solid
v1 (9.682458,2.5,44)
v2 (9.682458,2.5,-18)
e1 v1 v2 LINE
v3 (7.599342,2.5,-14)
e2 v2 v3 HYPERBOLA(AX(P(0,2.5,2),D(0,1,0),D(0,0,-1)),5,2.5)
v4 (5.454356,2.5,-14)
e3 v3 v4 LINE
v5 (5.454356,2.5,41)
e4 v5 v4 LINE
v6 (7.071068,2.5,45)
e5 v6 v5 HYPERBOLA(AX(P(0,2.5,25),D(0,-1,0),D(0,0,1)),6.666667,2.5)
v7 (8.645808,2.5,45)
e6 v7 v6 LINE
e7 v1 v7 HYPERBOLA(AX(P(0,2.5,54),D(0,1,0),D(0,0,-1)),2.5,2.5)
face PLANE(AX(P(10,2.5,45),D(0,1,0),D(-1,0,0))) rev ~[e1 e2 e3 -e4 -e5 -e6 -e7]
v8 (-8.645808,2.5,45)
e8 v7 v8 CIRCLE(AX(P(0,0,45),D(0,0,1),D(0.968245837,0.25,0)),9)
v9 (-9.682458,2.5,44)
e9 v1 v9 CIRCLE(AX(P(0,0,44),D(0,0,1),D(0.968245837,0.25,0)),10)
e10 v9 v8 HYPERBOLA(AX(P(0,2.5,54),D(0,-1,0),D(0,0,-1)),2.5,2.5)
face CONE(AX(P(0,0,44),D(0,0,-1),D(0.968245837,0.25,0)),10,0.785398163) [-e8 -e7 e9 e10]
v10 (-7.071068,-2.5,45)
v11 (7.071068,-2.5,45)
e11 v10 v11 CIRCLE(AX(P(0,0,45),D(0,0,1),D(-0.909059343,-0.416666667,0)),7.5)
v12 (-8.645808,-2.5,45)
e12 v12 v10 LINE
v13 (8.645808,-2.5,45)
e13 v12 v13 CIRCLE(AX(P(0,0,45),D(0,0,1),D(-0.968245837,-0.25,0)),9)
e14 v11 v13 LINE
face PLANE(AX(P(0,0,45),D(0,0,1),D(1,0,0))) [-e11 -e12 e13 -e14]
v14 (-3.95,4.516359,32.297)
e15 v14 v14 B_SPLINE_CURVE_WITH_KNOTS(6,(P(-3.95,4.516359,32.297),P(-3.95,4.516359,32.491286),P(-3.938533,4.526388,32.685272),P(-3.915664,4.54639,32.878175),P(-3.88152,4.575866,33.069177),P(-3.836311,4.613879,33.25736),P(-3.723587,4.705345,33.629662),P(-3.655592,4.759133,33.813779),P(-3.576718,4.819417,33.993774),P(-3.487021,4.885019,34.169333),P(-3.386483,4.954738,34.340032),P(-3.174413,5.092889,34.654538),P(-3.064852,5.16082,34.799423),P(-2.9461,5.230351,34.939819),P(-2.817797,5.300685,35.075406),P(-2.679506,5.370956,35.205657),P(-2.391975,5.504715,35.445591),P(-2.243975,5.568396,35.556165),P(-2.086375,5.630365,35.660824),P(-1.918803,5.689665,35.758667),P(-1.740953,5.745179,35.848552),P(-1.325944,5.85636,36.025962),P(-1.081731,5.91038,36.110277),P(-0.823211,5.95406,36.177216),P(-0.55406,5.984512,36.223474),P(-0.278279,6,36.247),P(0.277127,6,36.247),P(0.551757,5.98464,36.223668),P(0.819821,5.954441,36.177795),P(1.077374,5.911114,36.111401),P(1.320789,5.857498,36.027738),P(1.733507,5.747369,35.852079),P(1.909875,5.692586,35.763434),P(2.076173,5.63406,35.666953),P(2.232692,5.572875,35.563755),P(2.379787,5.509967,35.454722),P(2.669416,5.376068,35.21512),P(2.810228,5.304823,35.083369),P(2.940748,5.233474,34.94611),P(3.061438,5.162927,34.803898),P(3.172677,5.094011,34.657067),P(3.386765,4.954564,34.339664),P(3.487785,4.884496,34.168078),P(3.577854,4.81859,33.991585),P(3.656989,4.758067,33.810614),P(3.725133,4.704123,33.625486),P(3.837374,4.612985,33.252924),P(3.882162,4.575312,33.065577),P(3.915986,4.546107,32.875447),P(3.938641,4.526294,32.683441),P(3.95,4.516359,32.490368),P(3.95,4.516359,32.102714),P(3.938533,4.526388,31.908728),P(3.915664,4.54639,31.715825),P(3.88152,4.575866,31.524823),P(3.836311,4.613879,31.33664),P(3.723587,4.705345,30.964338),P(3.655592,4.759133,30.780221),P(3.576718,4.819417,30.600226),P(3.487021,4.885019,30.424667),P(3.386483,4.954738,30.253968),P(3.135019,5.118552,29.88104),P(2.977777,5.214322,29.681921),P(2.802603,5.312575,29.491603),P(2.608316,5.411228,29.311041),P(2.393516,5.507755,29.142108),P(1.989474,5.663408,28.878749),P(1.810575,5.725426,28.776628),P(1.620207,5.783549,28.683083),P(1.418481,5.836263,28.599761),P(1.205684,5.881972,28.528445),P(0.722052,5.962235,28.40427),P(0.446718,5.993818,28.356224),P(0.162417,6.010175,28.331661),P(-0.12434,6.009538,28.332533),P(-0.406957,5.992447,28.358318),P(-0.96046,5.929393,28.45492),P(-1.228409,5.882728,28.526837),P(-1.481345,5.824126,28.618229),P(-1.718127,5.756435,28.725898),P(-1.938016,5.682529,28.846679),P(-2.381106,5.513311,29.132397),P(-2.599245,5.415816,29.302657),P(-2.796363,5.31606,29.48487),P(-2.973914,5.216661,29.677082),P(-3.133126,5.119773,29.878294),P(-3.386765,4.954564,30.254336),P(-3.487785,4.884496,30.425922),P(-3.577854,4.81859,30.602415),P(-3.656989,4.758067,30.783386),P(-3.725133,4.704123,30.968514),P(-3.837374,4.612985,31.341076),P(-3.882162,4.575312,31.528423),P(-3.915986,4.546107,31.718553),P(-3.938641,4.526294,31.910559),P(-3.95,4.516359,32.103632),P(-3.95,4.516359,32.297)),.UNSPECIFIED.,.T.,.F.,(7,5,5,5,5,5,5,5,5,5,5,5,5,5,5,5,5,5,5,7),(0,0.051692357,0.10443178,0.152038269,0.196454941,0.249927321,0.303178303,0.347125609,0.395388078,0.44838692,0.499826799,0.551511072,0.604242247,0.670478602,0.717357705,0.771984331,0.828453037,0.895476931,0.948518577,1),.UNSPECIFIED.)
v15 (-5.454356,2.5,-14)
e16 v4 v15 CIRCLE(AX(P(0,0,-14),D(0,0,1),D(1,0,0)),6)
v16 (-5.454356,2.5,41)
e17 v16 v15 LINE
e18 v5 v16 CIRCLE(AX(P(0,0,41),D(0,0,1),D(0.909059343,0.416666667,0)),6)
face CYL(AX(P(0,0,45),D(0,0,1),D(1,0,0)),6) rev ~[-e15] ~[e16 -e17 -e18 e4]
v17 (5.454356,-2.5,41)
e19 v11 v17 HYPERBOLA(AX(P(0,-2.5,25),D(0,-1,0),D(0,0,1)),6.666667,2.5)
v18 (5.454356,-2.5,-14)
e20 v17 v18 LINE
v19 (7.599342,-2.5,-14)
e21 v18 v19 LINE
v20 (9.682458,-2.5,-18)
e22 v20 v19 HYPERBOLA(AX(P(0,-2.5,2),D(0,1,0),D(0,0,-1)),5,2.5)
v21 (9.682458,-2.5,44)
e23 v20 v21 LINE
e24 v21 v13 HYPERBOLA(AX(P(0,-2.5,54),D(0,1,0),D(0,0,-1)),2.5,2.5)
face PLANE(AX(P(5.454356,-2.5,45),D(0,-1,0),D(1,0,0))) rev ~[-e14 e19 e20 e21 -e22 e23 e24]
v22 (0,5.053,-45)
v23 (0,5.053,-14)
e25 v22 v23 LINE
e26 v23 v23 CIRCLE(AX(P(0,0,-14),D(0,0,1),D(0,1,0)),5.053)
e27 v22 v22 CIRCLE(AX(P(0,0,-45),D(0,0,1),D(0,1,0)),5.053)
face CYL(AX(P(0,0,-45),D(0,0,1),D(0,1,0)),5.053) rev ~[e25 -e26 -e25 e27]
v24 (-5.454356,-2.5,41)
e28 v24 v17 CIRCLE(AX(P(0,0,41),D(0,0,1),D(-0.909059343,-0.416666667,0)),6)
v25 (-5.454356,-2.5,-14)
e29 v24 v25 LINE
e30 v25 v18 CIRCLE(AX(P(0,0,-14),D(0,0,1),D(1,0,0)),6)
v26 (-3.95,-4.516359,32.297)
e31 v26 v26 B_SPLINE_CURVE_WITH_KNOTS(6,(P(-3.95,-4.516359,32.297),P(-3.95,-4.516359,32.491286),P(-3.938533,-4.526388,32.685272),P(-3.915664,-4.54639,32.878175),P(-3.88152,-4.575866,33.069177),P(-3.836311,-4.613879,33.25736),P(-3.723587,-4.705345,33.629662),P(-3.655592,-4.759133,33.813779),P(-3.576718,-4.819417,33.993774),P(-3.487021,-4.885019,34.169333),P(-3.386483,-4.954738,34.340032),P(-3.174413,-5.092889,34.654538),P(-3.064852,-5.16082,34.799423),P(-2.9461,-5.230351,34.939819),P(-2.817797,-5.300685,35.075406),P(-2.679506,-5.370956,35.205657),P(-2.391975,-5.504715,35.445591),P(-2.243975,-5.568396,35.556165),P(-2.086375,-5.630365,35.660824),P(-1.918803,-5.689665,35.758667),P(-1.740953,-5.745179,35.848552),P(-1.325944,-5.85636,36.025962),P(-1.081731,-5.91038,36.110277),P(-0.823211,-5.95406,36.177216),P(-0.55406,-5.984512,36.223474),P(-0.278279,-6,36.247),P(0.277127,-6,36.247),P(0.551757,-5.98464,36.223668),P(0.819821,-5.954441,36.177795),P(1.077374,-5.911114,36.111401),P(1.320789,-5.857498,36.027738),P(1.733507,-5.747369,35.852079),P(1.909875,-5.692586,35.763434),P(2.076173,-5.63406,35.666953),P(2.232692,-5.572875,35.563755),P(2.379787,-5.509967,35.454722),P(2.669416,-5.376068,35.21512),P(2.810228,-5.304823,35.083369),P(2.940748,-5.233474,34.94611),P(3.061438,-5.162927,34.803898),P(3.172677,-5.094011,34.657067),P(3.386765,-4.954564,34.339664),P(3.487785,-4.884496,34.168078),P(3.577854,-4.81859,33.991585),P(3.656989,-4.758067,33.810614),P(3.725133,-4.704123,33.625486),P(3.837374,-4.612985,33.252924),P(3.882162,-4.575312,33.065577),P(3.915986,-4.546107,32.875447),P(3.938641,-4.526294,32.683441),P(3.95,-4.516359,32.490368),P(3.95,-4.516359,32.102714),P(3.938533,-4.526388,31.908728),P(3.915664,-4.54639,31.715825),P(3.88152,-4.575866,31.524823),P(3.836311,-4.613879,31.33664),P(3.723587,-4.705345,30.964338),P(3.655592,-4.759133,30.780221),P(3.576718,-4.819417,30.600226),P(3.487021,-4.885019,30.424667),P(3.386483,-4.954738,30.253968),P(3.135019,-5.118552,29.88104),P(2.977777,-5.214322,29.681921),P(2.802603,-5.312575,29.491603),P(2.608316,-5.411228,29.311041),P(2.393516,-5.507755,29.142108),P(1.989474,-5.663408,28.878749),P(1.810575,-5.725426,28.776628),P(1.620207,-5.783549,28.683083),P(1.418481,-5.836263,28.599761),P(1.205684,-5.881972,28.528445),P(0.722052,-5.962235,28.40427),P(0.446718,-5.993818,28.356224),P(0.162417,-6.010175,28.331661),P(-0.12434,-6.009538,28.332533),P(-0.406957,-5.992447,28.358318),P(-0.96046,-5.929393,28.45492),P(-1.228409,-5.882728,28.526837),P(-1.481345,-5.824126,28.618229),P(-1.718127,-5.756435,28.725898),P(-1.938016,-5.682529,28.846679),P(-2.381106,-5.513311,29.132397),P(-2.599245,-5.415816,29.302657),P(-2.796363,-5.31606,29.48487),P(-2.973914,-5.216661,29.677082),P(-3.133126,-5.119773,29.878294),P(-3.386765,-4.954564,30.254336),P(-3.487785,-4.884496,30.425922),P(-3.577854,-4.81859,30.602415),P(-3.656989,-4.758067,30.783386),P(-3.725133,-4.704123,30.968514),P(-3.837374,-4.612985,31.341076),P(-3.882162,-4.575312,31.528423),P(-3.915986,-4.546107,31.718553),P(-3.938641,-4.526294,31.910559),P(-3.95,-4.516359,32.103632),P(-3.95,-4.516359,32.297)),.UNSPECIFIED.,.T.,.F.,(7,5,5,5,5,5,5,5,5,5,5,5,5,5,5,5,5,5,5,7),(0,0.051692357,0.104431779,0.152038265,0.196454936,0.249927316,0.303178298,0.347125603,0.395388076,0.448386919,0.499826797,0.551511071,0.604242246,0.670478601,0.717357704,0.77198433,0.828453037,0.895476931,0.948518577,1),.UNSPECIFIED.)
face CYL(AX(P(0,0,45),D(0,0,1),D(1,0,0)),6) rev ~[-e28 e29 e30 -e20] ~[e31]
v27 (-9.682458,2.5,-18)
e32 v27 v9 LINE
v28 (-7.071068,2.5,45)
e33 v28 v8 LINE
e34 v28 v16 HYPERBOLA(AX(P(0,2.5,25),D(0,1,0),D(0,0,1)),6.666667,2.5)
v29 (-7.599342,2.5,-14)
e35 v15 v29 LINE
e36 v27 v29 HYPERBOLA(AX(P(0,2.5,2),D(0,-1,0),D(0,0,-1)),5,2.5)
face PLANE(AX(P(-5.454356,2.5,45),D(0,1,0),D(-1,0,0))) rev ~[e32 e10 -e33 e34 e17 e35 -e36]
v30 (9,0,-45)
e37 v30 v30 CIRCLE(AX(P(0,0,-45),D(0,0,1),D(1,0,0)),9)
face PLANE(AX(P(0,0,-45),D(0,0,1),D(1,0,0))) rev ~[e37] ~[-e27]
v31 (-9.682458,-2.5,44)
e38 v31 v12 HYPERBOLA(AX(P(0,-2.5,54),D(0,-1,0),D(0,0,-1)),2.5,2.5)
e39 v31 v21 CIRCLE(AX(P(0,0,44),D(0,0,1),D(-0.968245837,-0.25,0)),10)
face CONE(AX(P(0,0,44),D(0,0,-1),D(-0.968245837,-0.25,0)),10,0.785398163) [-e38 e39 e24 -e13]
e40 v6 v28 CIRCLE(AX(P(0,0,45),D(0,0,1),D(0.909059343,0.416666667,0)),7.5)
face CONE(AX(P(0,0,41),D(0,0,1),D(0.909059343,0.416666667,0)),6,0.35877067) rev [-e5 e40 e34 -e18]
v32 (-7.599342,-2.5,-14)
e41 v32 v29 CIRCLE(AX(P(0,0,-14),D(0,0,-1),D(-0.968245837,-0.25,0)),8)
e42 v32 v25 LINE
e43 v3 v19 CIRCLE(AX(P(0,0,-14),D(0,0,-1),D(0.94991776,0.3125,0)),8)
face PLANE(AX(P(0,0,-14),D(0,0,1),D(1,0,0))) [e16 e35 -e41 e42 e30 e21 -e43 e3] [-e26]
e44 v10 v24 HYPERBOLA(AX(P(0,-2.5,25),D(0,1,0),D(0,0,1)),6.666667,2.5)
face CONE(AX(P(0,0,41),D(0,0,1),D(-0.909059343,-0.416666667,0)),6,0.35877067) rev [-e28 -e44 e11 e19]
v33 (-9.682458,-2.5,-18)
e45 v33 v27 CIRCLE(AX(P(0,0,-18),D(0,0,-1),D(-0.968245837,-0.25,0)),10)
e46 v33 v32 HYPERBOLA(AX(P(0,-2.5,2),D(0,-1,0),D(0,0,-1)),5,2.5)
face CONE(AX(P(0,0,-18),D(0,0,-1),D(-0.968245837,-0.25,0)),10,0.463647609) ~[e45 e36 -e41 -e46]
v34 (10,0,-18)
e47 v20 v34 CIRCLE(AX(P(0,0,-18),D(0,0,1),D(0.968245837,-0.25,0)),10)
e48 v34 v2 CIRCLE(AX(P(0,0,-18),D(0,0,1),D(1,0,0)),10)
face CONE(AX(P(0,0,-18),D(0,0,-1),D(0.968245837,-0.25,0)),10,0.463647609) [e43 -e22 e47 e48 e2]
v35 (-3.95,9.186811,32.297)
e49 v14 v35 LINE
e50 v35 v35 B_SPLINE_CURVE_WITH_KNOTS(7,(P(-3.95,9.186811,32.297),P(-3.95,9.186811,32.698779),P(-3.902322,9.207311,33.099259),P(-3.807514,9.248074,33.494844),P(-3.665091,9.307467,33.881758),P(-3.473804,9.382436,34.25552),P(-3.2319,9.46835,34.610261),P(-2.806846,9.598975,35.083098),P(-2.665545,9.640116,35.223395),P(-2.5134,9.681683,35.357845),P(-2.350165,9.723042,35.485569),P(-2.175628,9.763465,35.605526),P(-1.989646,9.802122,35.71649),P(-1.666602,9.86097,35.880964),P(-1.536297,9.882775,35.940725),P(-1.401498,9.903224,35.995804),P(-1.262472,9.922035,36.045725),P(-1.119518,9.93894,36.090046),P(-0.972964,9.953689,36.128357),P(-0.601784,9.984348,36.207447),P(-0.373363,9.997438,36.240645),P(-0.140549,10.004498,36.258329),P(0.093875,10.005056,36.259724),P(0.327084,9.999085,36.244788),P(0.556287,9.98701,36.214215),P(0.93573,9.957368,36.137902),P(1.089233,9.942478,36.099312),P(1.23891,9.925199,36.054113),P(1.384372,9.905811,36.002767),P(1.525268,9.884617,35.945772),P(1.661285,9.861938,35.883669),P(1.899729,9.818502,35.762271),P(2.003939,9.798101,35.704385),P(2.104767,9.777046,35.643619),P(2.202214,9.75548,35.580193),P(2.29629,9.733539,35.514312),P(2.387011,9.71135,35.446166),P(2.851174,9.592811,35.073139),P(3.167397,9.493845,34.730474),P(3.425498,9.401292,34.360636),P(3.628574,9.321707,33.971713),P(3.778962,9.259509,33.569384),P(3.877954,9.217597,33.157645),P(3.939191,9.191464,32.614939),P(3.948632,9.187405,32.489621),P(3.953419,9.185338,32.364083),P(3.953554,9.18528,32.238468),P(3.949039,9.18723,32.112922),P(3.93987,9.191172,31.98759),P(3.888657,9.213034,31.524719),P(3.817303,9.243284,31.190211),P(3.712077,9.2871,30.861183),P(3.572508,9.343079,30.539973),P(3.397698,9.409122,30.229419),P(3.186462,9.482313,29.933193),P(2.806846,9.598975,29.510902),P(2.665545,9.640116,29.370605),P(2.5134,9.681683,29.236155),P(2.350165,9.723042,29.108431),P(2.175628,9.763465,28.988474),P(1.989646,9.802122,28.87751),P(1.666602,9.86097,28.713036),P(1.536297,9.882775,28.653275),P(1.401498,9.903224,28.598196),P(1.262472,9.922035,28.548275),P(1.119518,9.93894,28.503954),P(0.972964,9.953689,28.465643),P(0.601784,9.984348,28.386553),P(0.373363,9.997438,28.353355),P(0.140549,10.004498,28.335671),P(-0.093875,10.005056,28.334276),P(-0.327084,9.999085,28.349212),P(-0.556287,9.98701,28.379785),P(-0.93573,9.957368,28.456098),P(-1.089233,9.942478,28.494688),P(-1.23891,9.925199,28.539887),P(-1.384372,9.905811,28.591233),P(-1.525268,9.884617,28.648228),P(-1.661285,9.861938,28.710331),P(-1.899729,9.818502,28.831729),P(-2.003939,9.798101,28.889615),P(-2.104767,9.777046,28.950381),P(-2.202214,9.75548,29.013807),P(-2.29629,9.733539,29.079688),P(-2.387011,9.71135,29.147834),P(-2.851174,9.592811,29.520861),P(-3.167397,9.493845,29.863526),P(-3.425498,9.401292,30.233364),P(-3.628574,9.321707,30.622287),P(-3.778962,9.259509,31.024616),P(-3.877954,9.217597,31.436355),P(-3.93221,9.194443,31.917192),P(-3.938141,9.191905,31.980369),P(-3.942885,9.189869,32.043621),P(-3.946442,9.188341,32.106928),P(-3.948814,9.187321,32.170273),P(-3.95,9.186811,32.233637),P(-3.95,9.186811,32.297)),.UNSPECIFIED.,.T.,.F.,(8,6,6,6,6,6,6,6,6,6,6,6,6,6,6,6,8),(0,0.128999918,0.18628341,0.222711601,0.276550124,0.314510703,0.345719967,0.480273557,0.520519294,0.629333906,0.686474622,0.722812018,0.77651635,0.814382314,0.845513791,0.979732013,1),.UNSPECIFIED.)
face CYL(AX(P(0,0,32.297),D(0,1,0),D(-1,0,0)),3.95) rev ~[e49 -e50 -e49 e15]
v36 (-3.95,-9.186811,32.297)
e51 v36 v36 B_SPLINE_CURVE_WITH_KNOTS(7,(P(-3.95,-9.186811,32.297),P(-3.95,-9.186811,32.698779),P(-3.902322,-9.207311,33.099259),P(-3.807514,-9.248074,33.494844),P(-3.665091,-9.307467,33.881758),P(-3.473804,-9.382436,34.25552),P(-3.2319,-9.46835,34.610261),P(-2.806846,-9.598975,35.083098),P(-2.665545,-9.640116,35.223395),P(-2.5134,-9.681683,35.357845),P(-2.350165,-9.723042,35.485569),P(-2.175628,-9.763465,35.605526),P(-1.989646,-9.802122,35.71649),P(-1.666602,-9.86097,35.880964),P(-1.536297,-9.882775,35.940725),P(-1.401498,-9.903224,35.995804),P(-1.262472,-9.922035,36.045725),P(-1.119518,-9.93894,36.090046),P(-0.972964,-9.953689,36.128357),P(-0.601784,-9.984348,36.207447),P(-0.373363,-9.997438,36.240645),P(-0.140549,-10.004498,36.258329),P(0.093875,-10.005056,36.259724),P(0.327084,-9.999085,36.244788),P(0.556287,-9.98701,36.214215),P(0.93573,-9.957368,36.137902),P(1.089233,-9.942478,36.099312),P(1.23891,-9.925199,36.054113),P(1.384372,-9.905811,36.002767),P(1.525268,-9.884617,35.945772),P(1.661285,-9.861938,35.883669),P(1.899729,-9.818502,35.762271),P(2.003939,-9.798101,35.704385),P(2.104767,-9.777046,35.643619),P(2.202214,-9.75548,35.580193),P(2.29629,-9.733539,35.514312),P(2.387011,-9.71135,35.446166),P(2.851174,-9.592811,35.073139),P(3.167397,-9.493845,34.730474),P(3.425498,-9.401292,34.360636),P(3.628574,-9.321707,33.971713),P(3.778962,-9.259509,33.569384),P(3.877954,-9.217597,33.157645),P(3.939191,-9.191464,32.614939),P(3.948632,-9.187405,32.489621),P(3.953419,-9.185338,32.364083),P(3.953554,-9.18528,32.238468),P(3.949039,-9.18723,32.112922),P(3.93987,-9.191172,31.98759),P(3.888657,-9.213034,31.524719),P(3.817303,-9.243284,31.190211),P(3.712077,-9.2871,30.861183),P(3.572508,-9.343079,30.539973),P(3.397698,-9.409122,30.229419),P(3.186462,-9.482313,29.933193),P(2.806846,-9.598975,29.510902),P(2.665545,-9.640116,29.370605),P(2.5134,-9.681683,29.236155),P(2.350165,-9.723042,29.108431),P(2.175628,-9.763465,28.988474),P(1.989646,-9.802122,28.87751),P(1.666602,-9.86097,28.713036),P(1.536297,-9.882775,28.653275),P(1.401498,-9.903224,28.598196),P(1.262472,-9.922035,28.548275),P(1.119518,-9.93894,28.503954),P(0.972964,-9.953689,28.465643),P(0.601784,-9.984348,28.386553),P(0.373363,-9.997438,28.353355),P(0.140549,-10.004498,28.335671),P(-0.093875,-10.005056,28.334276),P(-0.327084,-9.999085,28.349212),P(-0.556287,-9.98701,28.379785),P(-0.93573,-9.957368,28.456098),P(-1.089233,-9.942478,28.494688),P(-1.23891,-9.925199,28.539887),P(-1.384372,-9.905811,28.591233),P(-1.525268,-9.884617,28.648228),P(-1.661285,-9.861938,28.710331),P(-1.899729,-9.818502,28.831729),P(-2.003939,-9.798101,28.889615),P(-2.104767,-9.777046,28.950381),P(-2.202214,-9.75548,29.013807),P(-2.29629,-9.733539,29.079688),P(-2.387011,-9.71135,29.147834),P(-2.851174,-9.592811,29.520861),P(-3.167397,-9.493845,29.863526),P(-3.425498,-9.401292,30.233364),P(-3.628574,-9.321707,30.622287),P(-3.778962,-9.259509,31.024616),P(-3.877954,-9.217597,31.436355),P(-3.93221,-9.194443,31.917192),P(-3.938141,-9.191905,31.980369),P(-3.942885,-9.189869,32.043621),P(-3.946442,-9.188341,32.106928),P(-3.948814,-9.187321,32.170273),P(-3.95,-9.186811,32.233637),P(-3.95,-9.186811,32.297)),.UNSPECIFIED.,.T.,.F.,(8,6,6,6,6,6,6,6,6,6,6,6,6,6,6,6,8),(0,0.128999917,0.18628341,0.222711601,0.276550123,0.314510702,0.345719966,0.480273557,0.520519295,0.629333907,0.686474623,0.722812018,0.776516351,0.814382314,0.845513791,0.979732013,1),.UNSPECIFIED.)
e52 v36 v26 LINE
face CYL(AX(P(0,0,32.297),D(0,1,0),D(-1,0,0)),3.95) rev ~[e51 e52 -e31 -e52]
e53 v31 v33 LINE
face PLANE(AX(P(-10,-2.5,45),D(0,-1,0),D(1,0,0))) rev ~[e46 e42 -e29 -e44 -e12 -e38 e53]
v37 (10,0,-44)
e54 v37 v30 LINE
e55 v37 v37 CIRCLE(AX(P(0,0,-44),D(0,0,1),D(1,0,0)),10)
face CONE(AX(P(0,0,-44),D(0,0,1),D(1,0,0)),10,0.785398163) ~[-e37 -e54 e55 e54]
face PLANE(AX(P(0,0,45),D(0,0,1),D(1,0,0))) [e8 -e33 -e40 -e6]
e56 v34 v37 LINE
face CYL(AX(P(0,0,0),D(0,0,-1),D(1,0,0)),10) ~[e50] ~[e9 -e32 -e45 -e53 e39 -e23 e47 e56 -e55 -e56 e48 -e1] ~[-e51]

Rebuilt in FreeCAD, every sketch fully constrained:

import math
import FreeCAD as App
import Part
import Sketcher
from FreeCAD import Vector
Q = App.Units.Quantity


def edges_at(feature, points):
    """Names of the edges that pass closest to the given points."""
    edges = feature.Shape.Edges
    near = lambda p: min(range(len(edges)), key=lambda i: edges[i].distToShape(Part.Vertex(*p))[0])
    return sorted({f"Edge{near(p) + 1}" for p in points})

doc = App.newDocument("Part")
body = doc.addObject("PartDesign::Body", "Body")

# Sketch on XY plane
sketch1 = body.newObject("Sketcher::SketchObject", "Sketch")
sketch1.AttachmentSupport = (doc.getObject("XY_Plane"), [""])
sketch1.MapMode = "FlatFace"
sketch1.addGeometry(Part.Circle(Vector(0, 0, 0), Vector(0, 0, 1), 10), False)
sketch1.addConstraint([
    Sketcher.Constraint("Coincident", 0, 3, -1, 1),
    Sketcher.Constraint("Diameter", 0, Q("20 mm")),
])
pad1 = body.newObject("PartDesign::Pad", "Pad")
pad1.Profile = sketch1
pad1.Length = 90
pad1.Midplane = True

# Sketch on XY plane
sketch2 = body.newObject("Sketcher::SketchObject", "Sketch001")
sketch2.AttachmentSupport = (doc.getObject("XY_Plane"), [""])
sketch2.MapMode = "FlatFace"
sketch2.AttachmentOffset = App.Placement(Vector(0, 0, 45), App.Rotation())
sketch2.addGeometry([
    Part.LineSegment(Vector(5.5, -2.5, 0), Vector(10, -2.5, 0)),  # 0
    Part.LineSegment(Vector(10, -2.5, 0), Vector(10, 2.5, 0)),  # 1
    Part.LineSegment(Vector(10, 2.5, 0), Vector(5.5, 2.5, 0)),  # 2
    Part.ArcOfCircle(Part.Circle(Vector(0, 0, 0), Vector(0, 0, 1), 6), math.radians(25), math.radians(155)),  # 3
    Part.LineSegment(Vector(-5.5, 2.5, 0), Vector(-10, 2.5, 0)),  # 4
    Part.LineSegment(Vector(-10, 2.5, 0), Vector(-10, -2.5, 0)),  # 5
    Part.LineSegment(Vector(-10, -2.5, 0), Vector(-5.5, -2.5, 0)),  # 6
    Part.ArcOfCircle(Part.Circle(Vector(0, 0, 0), Vector(0, 0, 1), 6), math.radians(-155), math.radians(-25)),  # 7
], False)
sketch2.addConstraint([
    Sketcher.Constraint("Coincident", 0, 2, 1, 1),
    Sketcher.Constraint("Coincident", 1, 2, 2, 1),
    Sketcher.Constraint("Coincident", 2, 2, 3, 1),
    Sketcher.Constraint("Coincident", 3, 2, 4, 1),
    Sketcher.Constraint("Coincident", 4, 2, 5, 1),
    Sketcher.Constraint("Coincident", 5, 2, 6, 1),
    Sketcher.Constraint("Coincident", 6, 2, 7, 1),
    Sketcher.Constraint("Coincident", 7, 2, 0, 1),
    Sketcher.Constraint("Horizontal", 0),
    Sketcher.Constraint("Vertical", 1),
    Sketcher.Constraint("Horizontal", 2),
    Sketcher.Constraint("Horizontal", 4),
    Sketcher.Constraint("Vertical", 5),
    Sketcher.Constraint("Horizontal", 6),
    Sketcher.Constraint("Coincident", 3, 3, -1, 1),
    Sketcher.Constraint("Coincident", 7, 3, -1, 1),
    Sketcher.Constraint("Equal", 3, 7),
    Sketcher.Constraint("Symmetric", 0, 2, 4, 2, -1, 1),
    Sketcher.Constraint("Horizontal", 2, 2, 3, 2),
    Sketcher.Constraint("Horizontal", 0, 2, 5, 2),
    Sketcher.Constraint("Radius", 3, Q("6 mm")),
    Sketcher.Constraint("DistanceY", 1, 1, 1, 2, Q("5 mm")),
    Sketcher.Constraint("DistanceX", -1, 1, 0, 2, Q("10 mm")),
])
pocket1 = body.newObject("PartDesign::Pocket", "Pocket")
pocket1.Profile = sketch2
pocket1.Length = 59
doc.recompute()

chamfer = body.newObject("PartDesign::Chamfer", "Chamfer")
chamfer.Base = (pocket1, edges_at(pocket1, [(0, -10, 45), (0, 10, 45)]))
chamfer.Size = 1
doc.recompute()

chamfer2 = body.newObject("PartDesign::Chamfer", "Chamfer001")
chamfer2.Base = (chamfer, edges_at(chamfer, [(0, 6, 45)]))
chamfer2.ChamferType = "Two distances"
chamfer2.Size = 1.5
chamfer2.Size2 = 4
chamfer2.FlipDirection = True
doc.recompute()

chamfer3 = body.newObject("PartDesign::Chamfer", "Chamfer002")
chamfer3.Base = (chamfer2, edges_at(chamfer2, [(0, -6, 45)]))
chamfer3.ChamferType = "Two distances"
chamfer3.Size = 1.5
chamfer3.Size2 = 4
chamfer3.FlipDirection = True
doc.recompute()

chamfer4 = body.newObject("PartDesign::Chamfer", "Chamfer003")
chamfer4.Base = (chamfer3, edges_at(chamfer3, [(-10, 0, -14)]))
chamfer4.ChamferType = "Two distances"
chamfer4.Size = 4
chamfer4.Size2 = 2
doc.recompute()

chamfer5 = body.newObject("PartDesign::Chamfer", "Chamfer004")
chamfer5.Base = (chamfer4, edges_at(chamfer4, [(9.92, 1.26, -14), (9.92, -1.26, -14)]))
chamfer5.ChamferType = "Two distances"
chamfer5.Size = 4
chamfer5.Size2 = 2
doc.recompute()

chamfer6 = body.newObject("PartDesign::Chamfer", "Chamfer005")
chamfer6.Base = (chamfer5, edges_at(chamfer5, [(-10, 0, -45)]))
chamfer6.Size = 1

# Sketch on XY plane
sketch3 = body.newObject("Sketcher::SketchObject", "Sketch002")
sketch3.AttachmentSupport = (doc.getObject("XY_Plane"), [""])
sketch3.MapMode = "FlatFace"
sketch3.AttachmentOffset = App.Placement(Vector(0, 0, -45), App.Rotation())
sketch3.addGeometry(Part.Circle(Vector(0, 0, 0), Vector(0, 0, 1), 5), False)
sketch3.addConstraint([
    Sketcher.Constraint("Coincident", 0, 3, -1, 1),
    Sketcher.Constraint("Diameter", 0, Q("10.106 mm")),
])
doc.recompute()
hole = body.newObject("PartDesign::Hole", "Hole")
hole.Profile = sketch3
hole.ThreadType = "None"
hole.Diameter = 10.106
hole.DepthType = "Dimension"
hole.Depth = 45
hole.DrillPoint = "Flat"
hole.Reversed = True

# Sketch on XZ plane
sketch4 = body.newObject("Sketcher::SketchObject", "Sketch003")
sketch4.AttachmentSupport = (doc.getObject("XZ_Plane"), [""])
sketch4.MapMode = "FlatFace"
sketch4.addGeometry(Part.Circle(Vector(0, 32.3, 0), Vector(0, 0, 1), 4), False)
sketch4.addConstraint([
    Sketcher.Constraint("PointOnObject", 0, 3, -2),
    Sketcher.Constraint("Diameter", 0, Q("7.9 mm")),
    Sketcher.Constraint("DistanceY", -1, 1, 0, 3, Q("32.297 mm")),
])
pocket2 = body.newObject("PartDesign::Pocket", "Pocket001")
pocket2.Profile = sketch4
pocket2.Type = "ThroughAll"
pocket2.Midplane = True

doc.recompute()
